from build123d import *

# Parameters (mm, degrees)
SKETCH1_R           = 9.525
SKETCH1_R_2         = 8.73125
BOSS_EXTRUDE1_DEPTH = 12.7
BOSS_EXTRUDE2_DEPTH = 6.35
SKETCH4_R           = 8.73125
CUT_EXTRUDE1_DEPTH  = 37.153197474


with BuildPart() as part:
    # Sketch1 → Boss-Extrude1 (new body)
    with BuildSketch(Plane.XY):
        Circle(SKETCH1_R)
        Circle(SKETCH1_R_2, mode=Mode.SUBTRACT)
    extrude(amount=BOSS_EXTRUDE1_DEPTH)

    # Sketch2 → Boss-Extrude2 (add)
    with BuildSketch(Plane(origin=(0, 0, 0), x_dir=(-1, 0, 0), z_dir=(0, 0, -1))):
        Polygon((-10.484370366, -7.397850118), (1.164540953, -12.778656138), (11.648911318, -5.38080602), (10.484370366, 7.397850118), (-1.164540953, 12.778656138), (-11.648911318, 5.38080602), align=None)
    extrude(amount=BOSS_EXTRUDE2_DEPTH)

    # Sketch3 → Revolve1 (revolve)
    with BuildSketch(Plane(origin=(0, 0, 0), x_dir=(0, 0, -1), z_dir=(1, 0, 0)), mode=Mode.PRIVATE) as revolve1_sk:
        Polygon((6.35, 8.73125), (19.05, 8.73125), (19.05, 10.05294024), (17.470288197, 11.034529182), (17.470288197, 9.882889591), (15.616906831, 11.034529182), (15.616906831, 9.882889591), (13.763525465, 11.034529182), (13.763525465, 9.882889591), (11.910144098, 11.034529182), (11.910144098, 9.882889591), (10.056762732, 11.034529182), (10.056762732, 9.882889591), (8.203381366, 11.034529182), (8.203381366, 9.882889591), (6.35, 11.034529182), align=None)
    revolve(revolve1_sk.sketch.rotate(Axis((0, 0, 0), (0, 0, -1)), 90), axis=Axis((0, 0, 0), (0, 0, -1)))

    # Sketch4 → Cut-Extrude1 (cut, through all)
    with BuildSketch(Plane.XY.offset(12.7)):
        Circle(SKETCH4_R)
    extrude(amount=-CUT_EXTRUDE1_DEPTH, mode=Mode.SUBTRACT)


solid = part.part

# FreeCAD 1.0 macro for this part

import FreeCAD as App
import Part
import Sketcher

V = App.Vector
Q = App.Units.Quantity


def add_polygon(sketch, points):
    """Adds a closed chain of lines whose ends are joined by coincident constraints."""
    first, n = sketch.GeometryCount, len(points)
    for a, b in zip(points, points[1:] + points[:1]):
        sketch.addGeometry(Part.LineSegment(App.Vector(*a, 0), App.Vector(*b, 0)), False)
    for i in range(n):
        sketch.addConstraint(Sketcher.Constraint("Coincident", first + i, 2, first + (i + 1) % n, 1))

doc = App.newDocument("Part")
body = doc.addObject("PartDesign::Body", "Body")

# Sketch on XY plane
sketch1 = doc.addObject("Sketcher::SketchObject", "Sketch")
body.addObject(sketch1)
sketch1.AttachmentSupport = (doc.XY_Plane, [""])
sketch1.MapMode = "FlatFace"
sketch1.addGeometry([
    Part.Circle(V(0, 0, 0), V(0, 0, 1), 9.525),
    Part.Circle(V(0, 0, 0), V(0, 0, 1), 8.73125),
], False)
sketch1.addConstraint([
    Sketcher.Constraint("Coincident", 0, 3, -1, 1),
    Sketcher.Constraint("Coincident", 1, 3, -1, 1),
    Sketcher.Constraint("Diameter", 0, Q("0.75 in")),
    Sketcher.Constraint("Diameter", 1, Q("0.6875 in")),
])
pad1 = doc.addObject("PartDesign::Pad", "Pad")
body.addObject(pad1)
pad1.Profile = sketch1
pad1.Length = Q("0.5 in")

# Sketch on XY plane
sketch2 = doc.addObject("Sketcher::SketchObject", "Sketch001")
body.addObject(sketch2)
sketch2.AttachmentSupport = (doc.XY_Plane, [""])
sketch2.MapMode = "FlatFace"
add_polygon(sketch2, [(10.48437, -7.39785), (-1.164541, -12.778656), (-11.648911, -5.380806), (-10.48437, 7.39785), (1.164541, 12.778656), (11.648911, 5.380806)])  # lines 0-5
sketch2.addConstraint([
    Sketcher.Constraint("Symmetric", 0, 2, 3, 2, -1, 1),
    Sketcher.Constraint("Symmetric", 1, 2, 4, 2, -1, 1),
    Sketcher.Constraint("Symmetric", 2, 2, 5, 2, -1, 1),
    Sketcher.Constraint("Equal", 0, 1),
    Sketcher.Constraint("Equal", 1, 2),
    Sketcher.Constraint("DistanceY", 5, 2, 2, 2, Q("14.7957 mm")),
    Sketcher.Constraint("Distance", 0, Q("12.83161 mm")),
    Sketcher.Constraint("DistanceX", 0, 2, -1, 1, Q("1.164541 mm")),
    Sketcher.Constraint("DistanceX", 1, 2, -1, 1, Q("11.648911 mm")),
])
pad2 = doc.addObject("PartDesign::Pad", "Pad001")
body.addObject(pad2)
pad2.Profile = sketch2
pad2.Length = Q("0.25 in")
pad2.Reversed = True

# Sketch on YZ plane
sketch3 = doc.addObject("Sketcher::SketchObject", "Sketch002")
body.addObject(sketch3)
sketch3.AttachmentSupport = (doc.YZ_Plane, [""])
sketch3.MapMode = "FlatFace"
add_polygon(sketch3, [(8.73125, -6.35), (8.73125, -19.05), (10.05294, -19.05), (11.034529, -17.470288), (9.88289, -17.470288), (11.034529, -15.616907), (9.88289, -15.616907), (11.034529, -13.763525), (9.88289, -13.763525), (11.034529, -11.910144), (9.88289, -11.910144), (11.034529, -10.056763), (9.88289, -10.056763), (11.034529, -8.203381), (9.88289, -8.203381), (11.034529, -6.35)])  # lines 0-15
sketch3.addConstraint([
    Sketcher.Constraint("Vertical", 0),
    Sketcher.Constraint("Horizontal", 1),
    Sketcher.Constraint("Horizontal", 3),
    Sketcher.Constraint("Horizontal", 5),
    Sketcher.Constraint("Horizontal", 7),
    Sketcher.Constraint("Horizontal", 9),
    Sketcher.Constraint("Horizontal", 11),
    Sketcher.Constraint("Horizontal", 13),
    Sketcher.Constraint("Horizontal", 15),
    Sketcher.Constraint("Parallel", 2, 4),
    Sketcher.Constraint("Parallel", 4, 6),
    Sketcher.Constraint("Parallel", 6, 8),
    Sketcher.Constraint("Parallel", 8, 10),
    Sketcher.Constraint("Parallel", 10, 12),
    Sketcher.Constraint("Parallel", 12, 14),
    Sketcher.Constraint("Vertical", 2, 2, 4, 2),
    Sketcher.Constraint("Vertical", 3, 2, 5, 2),
    Sketcher.Constraint("Vertical", 4, 2, 6, 2),
    Sketcher.Constraint("Vertical", 5, 2, 7, 2),
    Sketcher.Constraint("Vertical", 6, 2, 8, 2),
    Sketcher.Constraint("Vertical", 7, 2, 9, 2),
    Sketcher.Constraint("Vertical", 8, 2, 10, 2),
    Sketcher.Constraint("Vertical", 9, 2, 11, 2),
    Sketcher.Constraint("Vertical", 10, 2, 12, 2),
    Sketcher.Constraint("Vertical", 11, 2, 13, 2),
    Sketcher.Constraint("Vertical", 12, 2, 14, 2),
    Sketcher.Constraint("DistanceY", 0, 2, 0, 1, Q("0.5 in")),
    Sketcher.Constraint("DistanceY", 0, 2, -1, 1, Q("0.75 in")),
    Sketcher.Constraint("DistanceX", -1, 1, 0, 2, Q("0.34375 in")),
    Sketcher.Constraint("DistanceX", 1, 1, 1, 2, Q("1.32169 mm")),
    Sketcher.Constraint("DistanceX", 3, 2, 3, 1, Q("1.15164 mm")),
    Sketcher.Constraint("DistanceX", 15, 2, 15, 1, Q("2.303279 mm")),
])
revolution = doc.addObject("PartDesign::Revolution", "Revolution")
body.addObject(revolution)
revolution.Profile = sketch3
revolution.ReferenceAxis = (sketch3, ["V_Axis"])
revolution.Angle = 360

# Sketch on XY plane
sketch4 = doc.addObject("Sketcher::SketchObject", "Sketch003")
body.addObject(sketch4)
sketch4.AttachmentSupport = (doc.XY_Plane, [""])
sketch4.MapMode = "FlatFace"
sketch4.AttachmentOffset = App.Placement(V(0, 0, 0.5 * 25.4), App.Rotation())
sketch4.addGeometry(Part.Circle(V(0, 0, 0), V(0, 0, 1), 8.73125), False)
sketch4.addConstraint([
    Sketcher.Constraint("Coincident", 0, 3, -1, 1),
    Sketcher.Constraint("Diameter", 0, Q("0.6875 in")),
])
pocket1 = doc.addObject("PartDesign::Pocket", "Pocket")
body.addObject(pocket1)
pocket1.Profile = sketch4
pocket1.Type = "ThroughAll"

doc.recompute()
